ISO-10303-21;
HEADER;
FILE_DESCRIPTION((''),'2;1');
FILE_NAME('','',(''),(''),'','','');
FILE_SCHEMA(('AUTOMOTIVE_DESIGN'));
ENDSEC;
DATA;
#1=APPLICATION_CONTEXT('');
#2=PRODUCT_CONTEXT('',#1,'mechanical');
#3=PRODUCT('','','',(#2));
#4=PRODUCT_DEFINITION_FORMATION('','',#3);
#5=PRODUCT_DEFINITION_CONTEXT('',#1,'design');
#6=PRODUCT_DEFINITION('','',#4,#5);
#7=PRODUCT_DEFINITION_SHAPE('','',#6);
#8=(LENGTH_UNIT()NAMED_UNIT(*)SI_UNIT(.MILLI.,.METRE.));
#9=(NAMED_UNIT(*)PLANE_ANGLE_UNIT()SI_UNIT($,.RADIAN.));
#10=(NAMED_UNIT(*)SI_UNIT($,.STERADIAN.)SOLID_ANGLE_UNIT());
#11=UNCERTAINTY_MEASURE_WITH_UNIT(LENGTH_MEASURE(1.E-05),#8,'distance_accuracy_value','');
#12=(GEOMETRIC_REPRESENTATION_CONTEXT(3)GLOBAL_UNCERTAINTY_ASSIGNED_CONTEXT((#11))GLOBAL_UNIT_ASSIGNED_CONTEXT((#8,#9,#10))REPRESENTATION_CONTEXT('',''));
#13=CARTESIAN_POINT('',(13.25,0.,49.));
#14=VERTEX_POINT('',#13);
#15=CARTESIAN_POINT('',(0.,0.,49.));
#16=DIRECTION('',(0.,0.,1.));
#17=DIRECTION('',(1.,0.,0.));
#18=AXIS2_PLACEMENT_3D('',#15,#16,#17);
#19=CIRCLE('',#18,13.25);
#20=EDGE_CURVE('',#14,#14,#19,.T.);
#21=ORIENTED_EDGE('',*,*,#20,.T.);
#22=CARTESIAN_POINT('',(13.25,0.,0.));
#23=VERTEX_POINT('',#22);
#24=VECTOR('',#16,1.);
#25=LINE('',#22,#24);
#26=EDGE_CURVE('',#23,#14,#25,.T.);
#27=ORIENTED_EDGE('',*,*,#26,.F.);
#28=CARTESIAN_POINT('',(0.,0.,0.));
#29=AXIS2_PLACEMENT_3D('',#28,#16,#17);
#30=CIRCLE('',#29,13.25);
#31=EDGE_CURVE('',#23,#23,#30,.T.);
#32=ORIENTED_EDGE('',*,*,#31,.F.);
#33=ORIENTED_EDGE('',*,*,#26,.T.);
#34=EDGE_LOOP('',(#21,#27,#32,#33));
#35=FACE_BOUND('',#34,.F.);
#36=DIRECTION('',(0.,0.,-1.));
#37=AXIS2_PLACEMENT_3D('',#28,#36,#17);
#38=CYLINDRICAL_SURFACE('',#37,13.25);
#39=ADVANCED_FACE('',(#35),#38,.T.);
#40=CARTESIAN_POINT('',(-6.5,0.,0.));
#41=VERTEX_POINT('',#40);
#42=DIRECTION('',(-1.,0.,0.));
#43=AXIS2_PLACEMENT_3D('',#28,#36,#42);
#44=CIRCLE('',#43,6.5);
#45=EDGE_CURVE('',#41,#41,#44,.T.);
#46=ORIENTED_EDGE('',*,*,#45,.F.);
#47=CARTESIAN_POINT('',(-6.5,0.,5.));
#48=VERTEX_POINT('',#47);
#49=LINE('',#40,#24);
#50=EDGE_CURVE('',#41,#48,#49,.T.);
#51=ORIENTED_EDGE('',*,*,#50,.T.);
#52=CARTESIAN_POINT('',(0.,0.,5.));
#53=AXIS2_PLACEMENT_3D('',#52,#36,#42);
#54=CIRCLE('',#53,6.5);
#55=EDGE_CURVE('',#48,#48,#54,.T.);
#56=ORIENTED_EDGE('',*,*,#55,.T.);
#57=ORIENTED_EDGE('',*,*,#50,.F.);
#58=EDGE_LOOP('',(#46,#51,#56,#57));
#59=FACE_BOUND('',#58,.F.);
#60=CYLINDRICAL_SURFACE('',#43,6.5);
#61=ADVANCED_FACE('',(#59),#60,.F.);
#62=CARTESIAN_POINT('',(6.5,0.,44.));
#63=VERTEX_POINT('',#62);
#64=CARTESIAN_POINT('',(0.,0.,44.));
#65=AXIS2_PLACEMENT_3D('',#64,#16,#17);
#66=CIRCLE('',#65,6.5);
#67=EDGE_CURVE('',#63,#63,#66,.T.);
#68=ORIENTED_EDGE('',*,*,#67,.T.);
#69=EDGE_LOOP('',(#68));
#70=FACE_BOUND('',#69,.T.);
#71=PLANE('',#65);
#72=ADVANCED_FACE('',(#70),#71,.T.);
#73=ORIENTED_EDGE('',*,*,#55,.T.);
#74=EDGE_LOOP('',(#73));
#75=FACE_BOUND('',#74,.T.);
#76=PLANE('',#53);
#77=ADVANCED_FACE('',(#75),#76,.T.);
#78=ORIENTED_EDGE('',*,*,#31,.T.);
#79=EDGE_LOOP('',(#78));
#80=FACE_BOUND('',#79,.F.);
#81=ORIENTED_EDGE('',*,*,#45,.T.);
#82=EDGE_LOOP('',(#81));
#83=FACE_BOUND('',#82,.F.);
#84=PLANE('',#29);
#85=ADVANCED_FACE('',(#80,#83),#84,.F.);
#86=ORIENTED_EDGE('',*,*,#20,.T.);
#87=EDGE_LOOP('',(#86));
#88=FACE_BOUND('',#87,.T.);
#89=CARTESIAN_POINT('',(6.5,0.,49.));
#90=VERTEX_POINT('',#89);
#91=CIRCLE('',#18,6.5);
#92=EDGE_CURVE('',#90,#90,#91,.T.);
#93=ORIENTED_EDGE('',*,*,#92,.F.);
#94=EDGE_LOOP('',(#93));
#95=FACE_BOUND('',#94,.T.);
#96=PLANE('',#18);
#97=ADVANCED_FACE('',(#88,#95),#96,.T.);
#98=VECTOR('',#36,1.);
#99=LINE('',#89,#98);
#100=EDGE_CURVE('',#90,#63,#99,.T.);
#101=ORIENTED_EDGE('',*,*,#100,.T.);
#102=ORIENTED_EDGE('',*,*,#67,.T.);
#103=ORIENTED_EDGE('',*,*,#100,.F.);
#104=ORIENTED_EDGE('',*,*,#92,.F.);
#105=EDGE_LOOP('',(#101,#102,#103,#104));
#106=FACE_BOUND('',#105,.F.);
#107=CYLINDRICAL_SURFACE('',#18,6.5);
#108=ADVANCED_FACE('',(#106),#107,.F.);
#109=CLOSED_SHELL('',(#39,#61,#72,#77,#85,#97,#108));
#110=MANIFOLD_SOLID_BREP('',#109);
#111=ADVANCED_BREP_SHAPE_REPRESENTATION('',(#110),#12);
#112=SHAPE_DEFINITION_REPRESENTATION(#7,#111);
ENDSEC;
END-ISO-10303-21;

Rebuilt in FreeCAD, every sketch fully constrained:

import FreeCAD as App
import Part
import Sketcher

V = App.Vector
Q = App.Units.Quantity

doc = App.newDocument("Part")
params = doc.addObject("Spreadsheet::Sheet", "Params")
for row, (alias, value) in enumerate([
    ("sketch1_diameter", "26.5 mm"),
    ("pad1_length", "49 mm"),
    ("sketch2_diameter", "13 mm"),
    ("pocket1_length", "5 mm"),
    ("sketch3_diameter", "13 mm"),
    ("pocket2_length", "5 mm"),
], start=1):
    params.set(f"A{row}", alias)
    params.set(f"B{row}", "=" + value)
    params.setAlias(f"B{row}", alias)

body = doc.addObject("PartDesign::Body", "Body")

sketch1 = body.newObject("Sketcher::SketchObject", "Sketch")
sketch1.AttachmentSupport = (doc.getObject("XY_Plane"), [""])
sketch1.MapMode = "FlatFace"
sketch1.addGeometry(Part.Circle(V(0, 0, 0), V(0, 0, 1), 13), False)
sketch1.addConstraint([
    Sketcher.Constraint("Coincident", 0, 3, -1, 1),
    Sketcher.Constraint("Diameter", 0, Q("26.5 mm")),
])
sketch1.setExpression("Constraints[1]", "Params.sketch1_diameter")
pad1 = body.newObject("PartDesign::Pad", "Pad")
pad1.Profile = sketch1
pad1.setExpression("Length", "Params.pad1_length")

sketch2 = body.newObject("Sketcher::SketchObject", "Sketch001")
sketch2.AttachmentSupport = (doc.getObject("XY_Plane"), [""])
sketch2.MapMode = "FlatFace"
sketch2.AttachmentOffset = App.Placement(V(0, 0, 49), App.Rotation())
sketch2.addGeometry(Part.Circle(V(0, 0, 0), V(0, 0, 1), 6), False)
sketch2.addConstraint([
    Sketcher.Constraint("Coincident", 0, 3, -1, 1),
    Sketcher.Constraint("Diameter", 0, Q("13 mm")),
])
sketch2.setExpression("Constraints[1]", "Params.sketch2_diameter")
pocket1 = body.newObject("PartDesign::Pocket", "Pocket")
pocket1.Profile = sketch2
pocket1.setExpression("Length", "Params.pocket1_length")

sketch3 = body.newObject("Sketcher::SketchObject", "Sketch002")
sketch3.AttachmentSupport = (doc.getObject("XY_Plane"), [""])
sketch3.MapMode = "FlatFace"
sketch3.addGeometry(Part.Circle(V(0, 0, 0), V(0, 0, 1), 6), False)
sketch3.addConstraint([
    Sketcher.Constraint("Coincident", 0, 3, -1, 1),
    Sketcher.Constraint("Diameter", 0, Q("13 mm")),
])
sketch3.setExpression("Constraints[1]", "Params.sketch3_diameter")
pocket2 = body.newObject("PartDesign::Pocket", "Pocket001")
pocket2.Profile = sketch3
pocket2.setExpression("Length", "Params.pocket2_length")
pocket2.Reversed = True

doc.recompute()
